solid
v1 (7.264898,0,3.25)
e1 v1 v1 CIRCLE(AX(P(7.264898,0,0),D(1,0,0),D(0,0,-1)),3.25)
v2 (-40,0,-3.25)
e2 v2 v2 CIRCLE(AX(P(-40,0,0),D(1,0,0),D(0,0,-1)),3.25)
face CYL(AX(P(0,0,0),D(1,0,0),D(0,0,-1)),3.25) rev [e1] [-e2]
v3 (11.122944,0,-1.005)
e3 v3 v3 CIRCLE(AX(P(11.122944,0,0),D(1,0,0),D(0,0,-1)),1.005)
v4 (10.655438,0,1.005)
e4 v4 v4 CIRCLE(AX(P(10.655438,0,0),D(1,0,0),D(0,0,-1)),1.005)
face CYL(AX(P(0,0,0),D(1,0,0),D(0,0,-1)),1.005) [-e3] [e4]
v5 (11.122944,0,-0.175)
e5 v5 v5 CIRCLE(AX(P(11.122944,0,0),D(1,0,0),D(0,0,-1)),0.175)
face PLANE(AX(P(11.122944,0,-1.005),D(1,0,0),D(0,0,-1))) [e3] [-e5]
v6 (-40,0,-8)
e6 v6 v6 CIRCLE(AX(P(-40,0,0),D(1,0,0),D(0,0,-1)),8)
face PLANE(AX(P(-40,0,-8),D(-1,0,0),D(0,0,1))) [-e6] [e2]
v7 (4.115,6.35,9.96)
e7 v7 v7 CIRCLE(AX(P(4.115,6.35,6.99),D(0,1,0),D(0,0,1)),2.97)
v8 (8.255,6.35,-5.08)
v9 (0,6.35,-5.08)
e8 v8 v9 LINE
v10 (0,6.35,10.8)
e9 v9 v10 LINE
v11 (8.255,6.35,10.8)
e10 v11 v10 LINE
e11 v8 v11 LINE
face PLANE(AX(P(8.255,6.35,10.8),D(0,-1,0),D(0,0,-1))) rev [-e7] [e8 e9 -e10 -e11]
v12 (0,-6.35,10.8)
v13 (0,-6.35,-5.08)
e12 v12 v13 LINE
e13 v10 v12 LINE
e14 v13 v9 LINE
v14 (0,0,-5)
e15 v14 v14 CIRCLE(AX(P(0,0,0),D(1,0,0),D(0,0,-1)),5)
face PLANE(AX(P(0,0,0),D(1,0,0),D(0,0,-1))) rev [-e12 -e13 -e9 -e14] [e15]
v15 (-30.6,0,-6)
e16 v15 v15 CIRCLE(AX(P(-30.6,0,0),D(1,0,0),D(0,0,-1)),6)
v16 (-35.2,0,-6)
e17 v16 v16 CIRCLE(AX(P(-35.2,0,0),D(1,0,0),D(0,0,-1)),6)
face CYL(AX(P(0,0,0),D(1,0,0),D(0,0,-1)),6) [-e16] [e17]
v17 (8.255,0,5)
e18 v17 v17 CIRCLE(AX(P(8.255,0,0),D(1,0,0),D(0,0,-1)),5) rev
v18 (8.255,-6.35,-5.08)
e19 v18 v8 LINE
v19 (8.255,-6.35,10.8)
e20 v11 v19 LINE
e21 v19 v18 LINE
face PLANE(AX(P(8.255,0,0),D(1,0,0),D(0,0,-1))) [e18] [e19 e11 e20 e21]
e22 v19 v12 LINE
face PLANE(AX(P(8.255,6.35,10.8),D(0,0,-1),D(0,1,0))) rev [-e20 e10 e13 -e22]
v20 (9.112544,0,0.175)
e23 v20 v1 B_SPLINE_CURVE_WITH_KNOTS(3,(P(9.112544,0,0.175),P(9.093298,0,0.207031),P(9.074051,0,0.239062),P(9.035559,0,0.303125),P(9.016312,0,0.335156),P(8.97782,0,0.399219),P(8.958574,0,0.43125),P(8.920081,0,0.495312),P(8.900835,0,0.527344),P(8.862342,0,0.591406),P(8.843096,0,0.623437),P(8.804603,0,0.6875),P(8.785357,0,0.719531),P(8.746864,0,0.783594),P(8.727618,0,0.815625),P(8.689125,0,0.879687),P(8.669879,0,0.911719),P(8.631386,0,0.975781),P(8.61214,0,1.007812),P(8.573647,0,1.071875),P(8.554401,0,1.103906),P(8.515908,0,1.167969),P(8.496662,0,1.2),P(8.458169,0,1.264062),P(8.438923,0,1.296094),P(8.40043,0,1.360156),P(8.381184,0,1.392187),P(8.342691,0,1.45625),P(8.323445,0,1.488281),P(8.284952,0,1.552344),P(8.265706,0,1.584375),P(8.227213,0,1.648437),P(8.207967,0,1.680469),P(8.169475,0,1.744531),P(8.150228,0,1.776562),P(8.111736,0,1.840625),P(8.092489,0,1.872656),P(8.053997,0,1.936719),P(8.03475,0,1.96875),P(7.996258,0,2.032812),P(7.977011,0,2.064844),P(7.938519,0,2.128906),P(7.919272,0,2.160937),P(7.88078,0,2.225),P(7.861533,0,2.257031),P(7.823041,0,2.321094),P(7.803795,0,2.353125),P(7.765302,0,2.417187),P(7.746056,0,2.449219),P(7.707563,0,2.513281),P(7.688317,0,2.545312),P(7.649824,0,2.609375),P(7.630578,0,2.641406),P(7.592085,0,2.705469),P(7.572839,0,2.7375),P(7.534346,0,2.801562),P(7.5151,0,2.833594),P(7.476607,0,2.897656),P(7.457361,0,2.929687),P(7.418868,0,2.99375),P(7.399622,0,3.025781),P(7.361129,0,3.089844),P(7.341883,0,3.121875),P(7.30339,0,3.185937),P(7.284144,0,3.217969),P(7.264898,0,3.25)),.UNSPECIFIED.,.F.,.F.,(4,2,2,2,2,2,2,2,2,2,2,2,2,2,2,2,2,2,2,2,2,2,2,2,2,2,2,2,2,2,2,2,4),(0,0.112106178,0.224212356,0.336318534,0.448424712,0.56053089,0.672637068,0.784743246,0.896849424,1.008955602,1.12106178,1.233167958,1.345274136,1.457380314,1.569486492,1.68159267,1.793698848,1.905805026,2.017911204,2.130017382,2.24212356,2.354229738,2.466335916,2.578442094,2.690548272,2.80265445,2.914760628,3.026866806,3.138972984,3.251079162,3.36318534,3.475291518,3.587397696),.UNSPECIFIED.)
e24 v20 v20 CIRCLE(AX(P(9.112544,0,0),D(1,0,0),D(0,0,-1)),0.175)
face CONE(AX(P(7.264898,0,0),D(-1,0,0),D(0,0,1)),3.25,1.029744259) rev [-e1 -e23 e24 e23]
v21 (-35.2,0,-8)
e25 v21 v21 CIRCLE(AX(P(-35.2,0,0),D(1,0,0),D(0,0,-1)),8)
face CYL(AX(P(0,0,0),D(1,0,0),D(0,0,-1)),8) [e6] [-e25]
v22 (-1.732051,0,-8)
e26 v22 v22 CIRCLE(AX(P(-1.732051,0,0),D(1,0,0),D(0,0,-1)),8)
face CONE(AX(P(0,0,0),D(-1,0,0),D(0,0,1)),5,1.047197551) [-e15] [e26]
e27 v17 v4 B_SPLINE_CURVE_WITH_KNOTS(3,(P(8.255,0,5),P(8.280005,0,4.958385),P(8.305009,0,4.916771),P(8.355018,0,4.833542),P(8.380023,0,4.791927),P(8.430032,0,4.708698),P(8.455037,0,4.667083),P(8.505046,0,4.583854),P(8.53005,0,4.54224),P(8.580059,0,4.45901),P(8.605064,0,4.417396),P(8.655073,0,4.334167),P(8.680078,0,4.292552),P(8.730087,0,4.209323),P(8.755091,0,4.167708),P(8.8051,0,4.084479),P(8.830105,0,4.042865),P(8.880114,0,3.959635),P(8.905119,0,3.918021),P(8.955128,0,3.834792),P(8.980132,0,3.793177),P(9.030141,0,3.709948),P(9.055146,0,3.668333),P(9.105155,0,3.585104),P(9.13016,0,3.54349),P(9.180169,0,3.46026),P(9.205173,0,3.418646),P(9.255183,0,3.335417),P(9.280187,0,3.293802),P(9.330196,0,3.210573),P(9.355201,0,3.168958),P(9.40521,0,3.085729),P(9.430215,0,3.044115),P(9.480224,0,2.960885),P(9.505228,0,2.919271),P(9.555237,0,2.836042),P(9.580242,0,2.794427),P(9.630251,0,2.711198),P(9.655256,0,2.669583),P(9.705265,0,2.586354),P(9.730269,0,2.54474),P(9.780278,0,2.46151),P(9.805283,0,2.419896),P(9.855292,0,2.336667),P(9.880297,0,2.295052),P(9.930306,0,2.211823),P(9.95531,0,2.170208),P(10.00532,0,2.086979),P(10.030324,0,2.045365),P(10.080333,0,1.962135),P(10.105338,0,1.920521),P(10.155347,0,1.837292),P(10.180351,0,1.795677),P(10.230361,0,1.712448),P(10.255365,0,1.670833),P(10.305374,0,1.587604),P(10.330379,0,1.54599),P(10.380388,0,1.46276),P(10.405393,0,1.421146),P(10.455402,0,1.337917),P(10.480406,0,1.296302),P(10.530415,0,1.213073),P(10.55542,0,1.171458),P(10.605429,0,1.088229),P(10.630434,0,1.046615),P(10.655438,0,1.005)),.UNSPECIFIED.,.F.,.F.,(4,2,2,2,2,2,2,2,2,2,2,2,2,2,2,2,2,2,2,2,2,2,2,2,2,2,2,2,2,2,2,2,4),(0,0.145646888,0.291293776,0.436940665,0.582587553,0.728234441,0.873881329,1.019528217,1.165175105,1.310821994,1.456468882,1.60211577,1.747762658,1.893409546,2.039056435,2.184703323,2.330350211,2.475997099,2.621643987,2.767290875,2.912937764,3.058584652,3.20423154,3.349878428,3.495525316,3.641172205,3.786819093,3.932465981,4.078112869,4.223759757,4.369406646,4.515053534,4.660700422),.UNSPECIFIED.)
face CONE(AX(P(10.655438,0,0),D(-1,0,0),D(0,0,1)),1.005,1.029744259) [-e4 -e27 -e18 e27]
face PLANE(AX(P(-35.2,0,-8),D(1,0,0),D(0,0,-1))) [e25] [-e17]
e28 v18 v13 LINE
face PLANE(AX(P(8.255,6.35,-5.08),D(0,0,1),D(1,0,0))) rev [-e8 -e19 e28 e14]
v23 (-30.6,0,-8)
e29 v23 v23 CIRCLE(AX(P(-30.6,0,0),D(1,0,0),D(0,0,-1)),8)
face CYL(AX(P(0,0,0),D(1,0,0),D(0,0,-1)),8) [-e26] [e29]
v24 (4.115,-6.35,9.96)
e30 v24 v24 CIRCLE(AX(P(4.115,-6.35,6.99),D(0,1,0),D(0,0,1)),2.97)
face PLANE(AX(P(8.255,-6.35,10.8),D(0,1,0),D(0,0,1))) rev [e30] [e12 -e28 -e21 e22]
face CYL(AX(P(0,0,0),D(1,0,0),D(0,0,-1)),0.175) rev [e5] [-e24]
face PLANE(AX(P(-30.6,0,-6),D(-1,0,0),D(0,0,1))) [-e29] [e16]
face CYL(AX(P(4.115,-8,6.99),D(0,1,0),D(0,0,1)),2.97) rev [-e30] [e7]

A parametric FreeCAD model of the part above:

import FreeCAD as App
import Part
import Sketcher
from FreeCAD import Vector
Q = App.Units.Quantity

doc = App.newDocument("Part")
body = doc.addObject("PartDesign::Body", "Body")

# Sketch on XZ plane
sketch1 = body.newObject("Sketcher::SketchObject", "Sketch")
sketch1.AttachmentSupport = (doc.getObject("XZ_Plane"), [""])
sketch1.MapMode = "FlatFace"
sketch1.addGeometry([
    Part.LineSegment(Vector(-35.2, -8, 0), Vector(-40, -8, 0)),  # 0
    Part.LineSegment(Vector(-40, -8, 0), Vector(-40, -3.25, 0)),  # 1
    Part.LineSegment(Vector(-40, -3.25, 0), Vector(7.26, -3.25, 0)),  # 2
    Part.LineSegment(Vector(7.26, -3.25, 0), Vector(9.11, -0.17, 0)),  # 3
    Part.LineSegment(Vector(9.11, -0.17, 0), Vector(11.12, -0.17, 0)),  # 4
    Part.LineSegment(Vector(11.12, -0.17, 0), Vector(11.12, -1, 0)),  # 5
    Part.LineSegment(Vector(11.12, -1, 0), Vector(10.66, -1, 0)),  # 6
    Part.LineSegment(Vector(10.66, -1, 0), Vector(8.26, -5, 0)),  # 7
    Part.LineSegment(Vector(8.26, -5, 0), Vector(0, -5, 0)),  # 8
    Part.LineSegment(Vector(0, -5, 0), Vector(-1.73, -8, 0)),  # 9
    Part.LineSegment(Vector(-1.73, -8, 0), Vector(-30.6, -8, 0)),  # 10
    Part.LineSegment(Vector(-30.6, -8, 0), Vector(-30.6, -6, 0)),  # 11
    Part.LineSegment(Vector(-30.6, -6, 0), Vector(-35.2, -6, 0)),  # 12
    Part.LineSegment(Vector(-35.2, -6, 0), Vector(-35.2, -8, 0)),  # 13
], False)
sketch1.addConstraint([
    Sketcher.Constraint("Coincident", 0, 2, 1, 1),
    Sketcher.Constraint("Coincident", 1, 2, 2, 1),
    Sketcher.Constraint("Coincident", 2, 2, 3, 1),
    Sketcher.Constraint("Coincident", 3, 2, 4, 1),
    Sketcher.Constraint("Coincident", 4, 2, 5, 1),
    Sketcher.Constraint("Coincident", 5, 2, 6, 1),
    Sketcher.Constraint("Coincident", 6, 2, 7, 1),
    Sketcher.Constraint("Coincident", 7, 2, 8, 1),
    Sketcher.Constraint("Coincident", 8, 2, 9, 1),
    Sketcher.Constraint("Coincident", 9, 2, 10, 1),
    Sketcher.Constraint("Coincident", 10, 2, 11, 1),
    Sketcher.Constraint("Coincident", 11, 2, 12, 1),
    Sketcher.Constraint("Coincident", 12, 2, 13, 1),
    Sketcher.Constraint("Coincident", 13, 2, 0, 1),
    Sketcher.Constraint("Horizontal", 0),
    Sketcher.Constraint("Vertical", 1),
    Sketcher.Constraint("Horizontal", 2),
    Sketcher.Constraint("Horizontal", 4),
    Sketcher.Constraint("Vertical", 5),
    Sketcher.Constraint("Horizontal", 6),
    Sketcher.Constraint("Horizontal", 8),
    Sketcher.Constraint("Horizontal", 10),
    Sketcher.Constraint("Vertical", 11),
    Sketcher.Constraint("Horizontal", 12),
    Sketcher.Constraint("Vertical", 13),
    Sketcher.Constraint("PointOnObject", 8, 2, -2),
    Sketcher.Constraint("Parallel", 3, 7),
    Sketcher.Constraint("Horizontal", 0, 2, 9, 2),
    Sketcher.Constraint("DistanceY", 11, 1, 11, 2, Q("2 mm")),
    Sketcher.Constraint("Angle", 3, Q("59 deg")),
    Sketcher.Constraint("Angle", 9, Q("-120 deg")),
    Sketcher.Constraint("DistanceX", 0, 2, 0, 1, Q("4.8 mm")),
    Sketcher.Constraint("DistanceX", 12, 2, 12, 1, Q("4.6 mm")),
    Sketcher.Constraint("DistanceX", 0, 2, -1, 1, Q("40 mm")),
    Sketcher.Constraint("DistanceY", 0, 2, -1, 1, Q("8 mm")),
    Sketcher.Constraint("DistanceY", 7, 2, -1, 1, Q("5 mm")),
    Sketcher.Constraint("DistanceY", 1, 1, 1, 2, Q("4.75 mm")),
    Sketcher.Constraint("DistanceY", 5, 2, 5, 1, Q("0.83 mm")),
    Sketcher.Constraint("DistanceX", 8, 2, 8, 1, Q("8.255 mm")),
    Sketcher.Constraint("DistanceX", 4, 1, 4, 2, Q("2.0104 mm")),
    Sketcher.Constraint("DistanceY", 3, 2, -1, 1, Q("0.175 mm")),
    Sketcher.Constraint("DistanceX", 2, 1, 2, 2, Q("47.264898 mm")),
])
revolution = body.newObject("PartDesign::Revolution", "Revolution")
revolution.Profile = sketch1
revolution.ReferenceAxis = (sketch1, ["H_Axis"])
revolution.Angle = 360

# Sketch on YZ plane
sketch2 = body.newObject("Sketcher::SketchObject", "Sketch001")
sketch2.AttachmentSupport = (doc.getObject("YZ_Plane"), [""])
sketch2.MapMode = "FlatFace"
sketch2.addGeometry([
    Part.LineSegment(Vector(6.3, 10.8, 0), Vector(-6.3, 10.8, 0)),  # 0
    Part.LineSegment(Vector(-6.3, 10.8, 0), Vector(-6.3, -5.1, 0)),  # 1
    Part.LineSegment(Vector(-6.3, -5.1, 0), Vector(6.3, -5.1, 0)),  # 2
    Part.LineSegment(Vector(6.3, -5.1, 0), Vector(6.3, 10.8, 0)),  # 3
    Part.Circle(Vector(0, 0, 0), Vector(0, 0, 1), 3.2),  # 4
], False)
sketch2.addConstraint([
    Sketcher.Constraint("Coincident", 0, 2, 1, 1),
    Sketcher.Constraint("Coincident", 1, 2, 2, 1),
    Sketcher.Constraint("Coincident", 2, 2, 3, 1),
    Sketcher.Constraint("Coincident", 3, 2, 0, 1),
    Sketcher.Constraint("Horizontal", 0),
    Sketcher.Constraint("Vertical", 1),
    Sketcher.Constraint("Horizontal", 2),
    Sketcher.Constraint("Vertical", 3),
    Sketcher.Constraint("Coincident", 4, 3, -1, 1),
    Sketcher.Constraint("Diameter", 4, Q("6.5 mm")),
    Sketcher.Constraint("DistanceX", 0, 2, 0, 1, Q("12.7 mm")),
    Sketcher.Constraint("DistanceY", 1, 2, 1, 1, Q("15.88 mm")),
    Sketcher.Constraint("DistanceY", -1, 1, 0, 2, Q("10.8 mm")),
    Sketcher.Constraint("DistanceX", 0, 2, -1, 1, Q("6.35 mm")),
])
pad1 = body.newObject("PartDesign::Pad", "Pad")
pad1.Profile = sketch2
pad1.Length = 8.255

# Sketch on XZ plane
sketch3 = body.newObject("Sketcher::SketchObject", "Sketch002")
sketch3.AttachmentSupport = (doc.getObject("XZ_Plane"), [""])
sketch3.MapMode = "FlatFace"
sketch3.AttachmentOffset = App.Placement(Vector(0, 0, -6.35), App.Rotation())
sketch3.addGeometry(Part.Circle(Vector(4.1, 7, 0), Vector(0, 0, 1), 3), False)
sketch3.addConstraint([
    Sketcher.Constraint("Diameter", 0, Q("5.94 mm")),
    Sketcher.Constraint("DistanceY", -1, 1, 0, 3, Q("6.99 mm")),
    Sketcher.Constraint("DistanceX", -1, 1, 0, 3, Q("4.115 mm")),
])
pocket1 = body.newObject("PartDesign::Pocket", "Pocket")
pocket1.Profile = sketch3
pocket1.Type = "ThroughAll"
pocket1.Reversed = True

doc.recompute()
